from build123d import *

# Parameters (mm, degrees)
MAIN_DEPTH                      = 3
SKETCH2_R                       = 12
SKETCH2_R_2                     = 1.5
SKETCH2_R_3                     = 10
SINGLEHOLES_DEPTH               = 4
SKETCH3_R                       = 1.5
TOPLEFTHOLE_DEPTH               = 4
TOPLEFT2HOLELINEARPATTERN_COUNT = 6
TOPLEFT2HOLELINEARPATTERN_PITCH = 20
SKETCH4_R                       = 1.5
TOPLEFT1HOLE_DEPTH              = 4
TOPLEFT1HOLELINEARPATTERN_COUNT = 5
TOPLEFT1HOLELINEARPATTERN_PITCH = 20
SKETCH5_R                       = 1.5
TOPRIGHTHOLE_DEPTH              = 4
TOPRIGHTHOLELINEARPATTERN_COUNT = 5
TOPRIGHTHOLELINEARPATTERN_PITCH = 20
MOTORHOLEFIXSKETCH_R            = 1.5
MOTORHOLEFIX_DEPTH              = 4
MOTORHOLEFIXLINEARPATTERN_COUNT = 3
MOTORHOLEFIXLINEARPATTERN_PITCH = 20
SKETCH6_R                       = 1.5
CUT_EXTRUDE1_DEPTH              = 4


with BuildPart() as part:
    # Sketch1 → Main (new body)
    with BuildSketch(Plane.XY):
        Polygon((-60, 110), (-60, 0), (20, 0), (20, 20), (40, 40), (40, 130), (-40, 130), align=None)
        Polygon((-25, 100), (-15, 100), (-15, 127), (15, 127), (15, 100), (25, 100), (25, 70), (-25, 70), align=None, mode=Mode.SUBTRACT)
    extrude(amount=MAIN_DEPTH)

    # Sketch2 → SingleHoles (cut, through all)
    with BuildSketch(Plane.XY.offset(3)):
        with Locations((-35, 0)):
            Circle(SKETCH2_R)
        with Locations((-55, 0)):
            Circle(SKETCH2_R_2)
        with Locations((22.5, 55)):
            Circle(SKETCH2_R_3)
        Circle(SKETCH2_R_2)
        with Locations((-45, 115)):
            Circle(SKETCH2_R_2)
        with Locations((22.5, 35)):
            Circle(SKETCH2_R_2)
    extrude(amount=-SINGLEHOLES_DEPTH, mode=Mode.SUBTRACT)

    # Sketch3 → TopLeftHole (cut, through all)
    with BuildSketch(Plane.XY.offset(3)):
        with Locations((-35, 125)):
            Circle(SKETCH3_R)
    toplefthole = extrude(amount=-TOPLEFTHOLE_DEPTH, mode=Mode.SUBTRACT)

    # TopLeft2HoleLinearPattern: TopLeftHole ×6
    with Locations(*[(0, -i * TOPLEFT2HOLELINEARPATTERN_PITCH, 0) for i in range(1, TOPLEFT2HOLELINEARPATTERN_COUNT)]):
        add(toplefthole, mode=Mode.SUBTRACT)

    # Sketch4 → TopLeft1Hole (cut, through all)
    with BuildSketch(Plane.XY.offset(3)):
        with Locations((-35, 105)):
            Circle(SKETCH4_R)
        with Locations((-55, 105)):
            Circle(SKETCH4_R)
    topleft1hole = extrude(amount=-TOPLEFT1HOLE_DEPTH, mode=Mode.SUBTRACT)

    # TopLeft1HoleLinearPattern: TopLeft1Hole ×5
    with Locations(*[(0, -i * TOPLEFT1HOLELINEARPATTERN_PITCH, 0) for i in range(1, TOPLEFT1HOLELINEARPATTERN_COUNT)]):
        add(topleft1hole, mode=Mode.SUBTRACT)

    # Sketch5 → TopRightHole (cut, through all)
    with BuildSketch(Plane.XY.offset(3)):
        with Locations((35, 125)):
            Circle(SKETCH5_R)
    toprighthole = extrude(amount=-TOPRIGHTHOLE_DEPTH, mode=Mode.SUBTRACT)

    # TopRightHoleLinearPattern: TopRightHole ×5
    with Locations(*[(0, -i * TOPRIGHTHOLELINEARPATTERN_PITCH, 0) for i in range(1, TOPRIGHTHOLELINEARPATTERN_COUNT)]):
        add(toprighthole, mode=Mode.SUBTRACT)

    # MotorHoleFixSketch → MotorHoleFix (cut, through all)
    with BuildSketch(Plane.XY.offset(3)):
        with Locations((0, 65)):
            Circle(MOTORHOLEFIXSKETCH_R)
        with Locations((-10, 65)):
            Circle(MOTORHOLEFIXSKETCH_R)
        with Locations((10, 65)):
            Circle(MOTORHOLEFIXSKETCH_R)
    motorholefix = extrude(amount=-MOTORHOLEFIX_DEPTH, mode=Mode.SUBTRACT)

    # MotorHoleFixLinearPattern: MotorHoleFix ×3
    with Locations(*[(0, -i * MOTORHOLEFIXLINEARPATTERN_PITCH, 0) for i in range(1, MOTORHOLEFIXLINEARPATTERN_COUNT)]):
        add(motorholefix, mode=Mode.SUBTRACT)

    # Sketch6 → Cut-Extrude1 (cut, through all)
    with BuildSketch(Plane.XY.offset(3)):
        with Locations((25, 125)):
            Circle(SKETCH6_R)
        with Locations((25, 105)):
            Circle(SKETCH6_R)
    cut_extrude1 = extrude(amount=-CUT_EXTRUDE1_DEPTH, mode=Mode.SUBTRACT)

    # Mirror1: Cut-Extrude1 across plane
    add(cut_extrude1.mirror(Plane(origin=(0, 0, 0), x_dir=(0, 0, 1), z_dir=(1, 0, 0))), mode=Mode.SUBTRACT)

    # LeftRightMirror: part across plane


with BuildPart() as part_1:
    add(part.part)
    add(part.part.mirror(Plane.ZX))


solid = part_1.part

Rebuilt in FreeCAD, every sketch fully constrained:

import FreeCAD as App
import Part
import Sketcher

V = App.Vector
Q = App.Units.Quantity


def add_polygon(sketch, points):
    """Adds a closed chain of lines whose ends are joined by coincident constraints."""
    first, n = sketch.GeometryCount, len(points)
    for a, b in zip(points, points[1:] + points[:1]):
        sketch.addGeometry(Part.LineSegment(App.Vector(*a, 0), App.Vector(*b, 0)), False)
    for i in range(n):
        sketch.addConstraint(Sketcher.Constraint("Coincident", first + i, 2, first + (i + 1) % n, 1))

doc = App.newDocument("Part")
body = doc.addObject("PartDesign::Body", "Body")

# Sketch on XY plane
sketch1 = doc.addObject("Sketcher::SketchObject", "Sketch")
body.addObject(sketch1)
sketch1.AttachmentSupport = (doc.XY_Plane, [""])
sketch1.MapMode = "FlatFace"
add_polygon(sketch1, [(-60, 110), (-60, 0), (20, 0), (20, 20), (40, 40), (40, 130), (-40, 130)])  # lines 0-6
add_polygon(sketch1, [(-25, 70), (-25, 100), (-15, 100), (-15, 127), (15, 127), (15, 100), (25, 100), (25, 70)])  # lines 7-14
sketch1.addConstraint([
    Sketcher.Constraint("Vertical", 0),
    Sketcher.Constraint("Horizontal", 1),
    Sketcher.Constraint("Vertical", 2),
    Sketcher.Constraint("Vertical", 4),
    Sketcher.Constraint("Horizontal", 5),
    Sketcher.Constraint("Vertical", 7),
    Sketcher.Constraint("Horizontal", 8),
    Sketcher.Constraint("Vertical", 9),
    Sketcher.Constraint("Horizontal", 10),
    Sketcher.Constraint("Vertical", 11),
    Sketcher.Constraint("Horizontal", 12),
    Sketcher.Constraint("Vertical", 13),
    Sketcher.Constraint("Horizontal", 14),
    Sketcher.Constraint("Symmetric", 8, 2, 11, 2, -2),
    Sketcher.Constraint("PointOnObject", 0, 2, -1),
    Sketcher.Constraint("Parallel", 3, 6),
    Sketcher.Constraint("Equal", 1, 5),
    Sketcher.Constraint("Equal", 8, 12),
    Sketcher.Constraint("Equal", 10, 7),
    Sketcher.Constraint("DistanceX", 1, 1, 1, 2, Q("80 mm")),
    Sketcher.Constraint("DistanceX", 8, 1, 8, 2, Q("10 mm")),
    Sketcher.Constraint("DistanceX", 10, 1, 10, 2, Q("30 mm")),
    Sketcher.Constraint("DistanceY", 0, 2, 0, 1, Q("110 mm")),
    Sketcher.Constraint("DistanceY", 2, 1, 2, 2, Q("20 mm")),
    Sketcher.Constraint("DistanceY", 9, 1, 9, 2, Q("27 mm")),
    Sketcher.Constraint("Angle", 3, Q("45 deg")),
    Sketcher.Constraint("DistanceX", 0, 2, -1, 1, Q("60 mm")),
    Sketcher.Constraint("DistanceX", -1, 1, 3, 2, Q("40 mm")),
    Sketcher.Constraint("DistanceY", -1, 1, 7, 2, Q("100 mm")),
])
pad1 = doc.addObject("PartDesign::Pad", "Pad")
body.addObject(pad1)
pad1.Profile = sketch1
pad1.Length = 3

# Sketch on XY plane
sketch2 = doc.addObject("Sketcher::SketchObject", "Sketch001")
body.addObject(sketch2)
sketch2.AttachmentSupport = (doc.XY_Plane, [""])
sketch2.MapMode = "FlatFace"
sketch2.AttachmentOffset = App.Placement(V(0, 0, 3), App.Rotation())
sketch2.addGeometry([
    Part.Circle(V(-35, 0, 0), V(0, 0, 1), 12),  # 0
    Part.Circle(V(-55, 0, 0), V(0, 0, 1), 1.5),  # 1
    Part.Circle(V(22.5, 55, 0), V(0, 0, 1), 10),  # 2
    Part.Circle(V(0, 0, 0), V(0, 0, 1), 1.5),  # 3
    Part.Circle(V(-45, 115, 0), V(0, 0, 1), 1.5),  # 4
    Part.Circle(V(22.5, 35, 0), V(0, 0, 1), 1.5),  # 5
], False)
sketch2.addConstraint([
    Sketcher.Constraint("Coincident", 3, 3, -1, 1),
    Sketcher.Constraint("Equal", 1, 3),
    Sketcher.Constraint("Equal", 3, 4),
    Sketcher.Constraint("Equal", 4, 5),
    Sketcher.Constraint("PointOnObject", 0, 3, -1),
    Sketcher.Constraint("PointOnObject", 1, 3, -1),
    Sketcher.Constraint("Vertical", 2, 3, 5, 3),
    Sketcher.Constraint("Diameter", 0, Q("24 mm")),
    Sketcher.Constraint("Diameter", 1, Q("3 mm")),
    Sketcher.Constraint("Diameter", 2, Q("20 mm")),
    Sketcher.Constraint("DistanceX", 0, 3, -1, 1, Q("35 mm")),
    Sketcher.Constraint("DistanceX", 1, 3, -1, 1, Q("55 mm")),
    Sketcher.Constraint("DistanceY", -1, 1, 2, 3, Q("55 mm")),
    Sketcher.Constraint("DistanceX", 4, 3, -1, 1, Q("45 mm")),
    Sketcher.Constraint("DistanceY", -1, 1, 4, 3, Q("115 mm")),
    Sketcher.Constraint("DistanceY", -1, 1, 5, 3, Q("35 mm")),
    Sketcher.Constraint("DistanceX", -1, 1, 2, 3, Q("22.5 mm")),
])
pocket1 = doc.addObject("PartDesign::Pocket", "Pocket")
body.addObject(pocket1)
pocket1.Profile = sketch2
pocket1.Type = "ThroughAll"

# Sketch on XY plane
sketch3 = doc.addObject("Sketcher::SketchObject", "Sketch002")
body.addObject(sketch3)
sketch3.AttachmentSupport = (doc.XY_Plane, [""])
sketch3.MapMode = "FlatFace"
sketch3.AttachmentOffset = App.Placement(V(0, 0, 3), App.Rotation())
sketch3.addGeometry(Part.Circle(V(-35, 125, 0), V(0, 0, 1), 1.5), False)
sketch3.addConstraint([
    Sketcher.Constraint("Diameter", 0, Q("3 mm")),
    Sketcher.Constraint("DistanceX", 0, 3, -1, 1, Q("35 mm")),
    Sketcher.Constraint("DistanceY", -1, 1, 0, 3, Q("125 mm")),
])
pocket2 = doc.addObject("PartDesign::Pocket", "Pocket001")
body.addObject(pocket2)
pocket2.Profile = sketch3
pocket2.Type = "ThroughAll"
doc.recompute()

linearpattern = doc.addObject("PartDesign::LinearPattern", "LinearPattern")
body.addObject(linearpattern)
linearpattern.Originals = [pocket2]
linearpattern.Direction = (doc.Y_Axis, [""])
linearpattern.Mode = "offset"
linearpattern.Offset = 20
linearpattern.Occurrences = 6
linearpattern.Reversed = True
body.Tip = linearpattern

# Sketch on XY plane
sketch4 = doc.addObject("Sketcher::SketchObject", "Sketch003")
body.addObject(sketch4)
sketch4.AttachmentSupport = (doc.XY_Plane, [""])
sketch4.MapMode = "FlatFace"
sketch4.AttachmentOffset = App.Placement(V(0, 0, 3), App.Rotation())
sketch4.addGeometry([
    Part.Circle(V(-35, 105, 0), V(0, 0, 1), 1.5),
    Part.Circle(V(-55, 105, 0), V(0, 0, 1), 1.5),
], False)
sketch4.addConstraint([
    Sketcher.Constraint("Equal", 0, 1),
    Sketcher.Constraint("Horizontal", 0, 3, 1, 3),
    Sketcher.Constraint("Diameter", 0, Q("3 mm")),
    Sketcher.Constraint("DistanceX", 0, 3, -1, 1, Q("35 mm")),
    Sketcher.Constraint("DistanceY", -1, 1, 0, 3, Q("105 mm")),
    Sketcher.Constraint("DistanceX", 1, 3, -1, 1, Q("55 mm")),
])
pocket3 = doc.addObject("PartDesign::Pocket", "Pocket002")
body.addObject(pocket3)
pocket3.Profile = sketch4
pocket3.Type = "ThroughAll"
doc.recompute()

linearpattern2 = doc.addObject("PartDesign::LinearPattern", "LinearPattern001")
body.addObject(linearpattern2)
linearpattern2.Originals = [pocket3]
linearpattern2.Direction = (doc.Y_Axis, [""])
linearpattern2.Mode = "offset"
linearpattern2.Offset = 20
linearpattern2.Occurrences = 5
linearpattern2.Reversed = True
body.Tip = linearpattern2

# Sketch on XY plane
sketch5 = doc.addObject("Sketcher::SketchObject", "Sketch004")
body.addObject(sketch5)
sketch5.AttachmentSupport = (doc.XY_Plane, [""])
sketch5.MapMode = "FlatFace"
sketch5.AttachmentOffset = App.Placement(V(0, 0, 3), App.Rotation())
sketch5.addGeometry(Part.Circle(V(35, 125, 0), V(0, 0, 1), 1.5), False)
sketch5.addConstraint([
    Sketcher.Constraint("Diameter", 0, Q("3 mm")),
    Sketcher.Constraint("DistanceX", -1, 1, 0, 3, Q("35 mm")),
    Sketcher.Constraint("DistanceY", -1, 1, 0, 3, Q("125 mm")),
])
pocket4 = doc.addObject("PartDesign::Pocket", "Pocket003")
body.addObject(pocket4)
pocket4.Profile = sketch5
pocket4.Type = "ThroughAll"
doc.recompute()

linearpattern3 = doc.addObject("PartDesign::LinearPattern", "LinearPattern002")
body.addObject(linearpattern3)
linearpattern3.Originals = [pocket4]
linearpattern3.Direction = (doc.Y_Axis, [""])
linearpattern3.Mode = "offset"
linearpattern3.Offset = 20
linearpattern3.Occurrences = 5
linearpattern3.Reversed = True
body.Tip = linearpattern3

# Sketch on XY plane
sketch6 = doc.addObject("Sketcher::SketchObject", "Sketch005")
body.addObject(sketch6)
sketch6.AttachmentSupport = (doc.XY_Plane, [""])
sketch6.MapMode = "FlatFace"
sketch6.AttachmentOffset = App.Placement(V(0, 0, 3), App.Rotation())
sketch6.addGeometry([
    Part.Circle(V(0, 65, 0), V(0, 0, 1), 1.5),
    Part.Circle(V(-10, 65, 0), V(0, 0, 1), 1.5),
    Part.Circle(V(10, 65, 0), V(0, 0, 1), 1.5),
], False)
sketch6.addConstraint([
    Sketcher.Constraint("Equal", 0, 1),
    Sketcher.Constraint("Equal", 1, 2),
    Sketcher.Constraint("Symmetric", 1, 3, 2, 3, -2),
    Sketcher.Constraint("PointOnObject", 0, 3, -2),
    Sketcher.Constraint("Horizontal", 0, 3, 1, 3),
    Sketcher.Constraint("Diameter", 0, Q("3 mm")),
    Sketcher.Constraint("DistanceY", -1, 1, 0, 3, Q("65 mm")),
    Sketcher.Constraint("DistanceX", 1, 3, -1, 1, Q("10 mm")),
])
pocket5 = doc.addObject("PartDesign::Pocket", "Pocket004")
body.addObject(pocket5)
pocket5.Profile = sketch6
pocket5.Type = "ThroughAll"
doc.recompute()

linearpattern4 = doc.addObject("PartDesign::LinearPattern", "LinearPattern003")
body.addObject(linearpattern4)
linearpattern4.Originals = [pocket5]
linearpattern4.Direction = (doc.Y_Axis, [""])
linearpattern4.Mode = "offset"
linearpattern4.Offset = 20
linearpattern4.Occurrences = 3
linearpattern4.Reversed = True
body.Tip = linearpattern4

# Sketch on XY plane
sketch7 = doc.addObject("Sketcher::SketchObject", "Sketch006")
body.addObject(sketch7)
sketch7.AttachmentSupport = (doc.XY_Plane, [""])
sketch7.MapMode = "FlatFace"
sketch7.AttachmentOffset = App.Placement(V(0, 0, 3), App.Rotation())
sketch7.addGeometry([
    Part.Circle(V(25, 125, 0), V(0, 0, 1), 1.5),
    Part.Circle(V(25, 105, 0), V(0, 0, 1), 1.5),
], False)
sketch7.addConstraint([
    Sketcher.Constraint("Equal", 0, 1),
    Sketcher.Constraint("Vertical", 0, 3, 1, 3),
    Sketcher.Constraint("Diameter", 0, Q("3 mm")),
    Sketcher.Constraint("DistanceX", -1, 1, 0, 3, Q("25 mm")),
    Sketcher.Constraint("DistanceY", -1, 1, 0, 3, Q("125 mm")),
    Sketcher.Constraint("DistanceY", -1, 1, 1, 3, Q("105 mm")),
])
pocket6 = doc.addObject("PartDesign::Pocket", "Pocket005")
body.addObject(pocket6)
pocket6.Profile = sketch7
pocket6.Type = "ThroughAll"
doc.recompute()

mirrored = doc.addObject("PartDesign::Mirrored", "Mirrored")
body.addObject(mirrored)
mirrored.Originals = [pocket6]
mirrored.MirrorPlane = (doc.YZ_Plane, [""])
body.Tip = mirrored
body2 = doc.addObject("PartDesign::Body", "Body001")
doc.recompute()

body2.BaseFeature = body
doc.recompute()

mirroring = doc.addObject("Part::Mirroring", "Mirroring")
mirroring.Source = body
mirroring.Base = V(0, 0, 0)
mirroring.Normal = V(0, 1, 0)
body3 = doc.addObject("PartDesign::Body", "Body002")
body3.BaseFeature = mirroring
boolean = doc.addObject("PartDesign::Boolean", "Boolean")
body2.addObject(boolean)
boolean.Type = "Fuse"
boolean.addObjects([body3])
doc.recompute()
mirroring.Visibility = False

doc.recompute()
